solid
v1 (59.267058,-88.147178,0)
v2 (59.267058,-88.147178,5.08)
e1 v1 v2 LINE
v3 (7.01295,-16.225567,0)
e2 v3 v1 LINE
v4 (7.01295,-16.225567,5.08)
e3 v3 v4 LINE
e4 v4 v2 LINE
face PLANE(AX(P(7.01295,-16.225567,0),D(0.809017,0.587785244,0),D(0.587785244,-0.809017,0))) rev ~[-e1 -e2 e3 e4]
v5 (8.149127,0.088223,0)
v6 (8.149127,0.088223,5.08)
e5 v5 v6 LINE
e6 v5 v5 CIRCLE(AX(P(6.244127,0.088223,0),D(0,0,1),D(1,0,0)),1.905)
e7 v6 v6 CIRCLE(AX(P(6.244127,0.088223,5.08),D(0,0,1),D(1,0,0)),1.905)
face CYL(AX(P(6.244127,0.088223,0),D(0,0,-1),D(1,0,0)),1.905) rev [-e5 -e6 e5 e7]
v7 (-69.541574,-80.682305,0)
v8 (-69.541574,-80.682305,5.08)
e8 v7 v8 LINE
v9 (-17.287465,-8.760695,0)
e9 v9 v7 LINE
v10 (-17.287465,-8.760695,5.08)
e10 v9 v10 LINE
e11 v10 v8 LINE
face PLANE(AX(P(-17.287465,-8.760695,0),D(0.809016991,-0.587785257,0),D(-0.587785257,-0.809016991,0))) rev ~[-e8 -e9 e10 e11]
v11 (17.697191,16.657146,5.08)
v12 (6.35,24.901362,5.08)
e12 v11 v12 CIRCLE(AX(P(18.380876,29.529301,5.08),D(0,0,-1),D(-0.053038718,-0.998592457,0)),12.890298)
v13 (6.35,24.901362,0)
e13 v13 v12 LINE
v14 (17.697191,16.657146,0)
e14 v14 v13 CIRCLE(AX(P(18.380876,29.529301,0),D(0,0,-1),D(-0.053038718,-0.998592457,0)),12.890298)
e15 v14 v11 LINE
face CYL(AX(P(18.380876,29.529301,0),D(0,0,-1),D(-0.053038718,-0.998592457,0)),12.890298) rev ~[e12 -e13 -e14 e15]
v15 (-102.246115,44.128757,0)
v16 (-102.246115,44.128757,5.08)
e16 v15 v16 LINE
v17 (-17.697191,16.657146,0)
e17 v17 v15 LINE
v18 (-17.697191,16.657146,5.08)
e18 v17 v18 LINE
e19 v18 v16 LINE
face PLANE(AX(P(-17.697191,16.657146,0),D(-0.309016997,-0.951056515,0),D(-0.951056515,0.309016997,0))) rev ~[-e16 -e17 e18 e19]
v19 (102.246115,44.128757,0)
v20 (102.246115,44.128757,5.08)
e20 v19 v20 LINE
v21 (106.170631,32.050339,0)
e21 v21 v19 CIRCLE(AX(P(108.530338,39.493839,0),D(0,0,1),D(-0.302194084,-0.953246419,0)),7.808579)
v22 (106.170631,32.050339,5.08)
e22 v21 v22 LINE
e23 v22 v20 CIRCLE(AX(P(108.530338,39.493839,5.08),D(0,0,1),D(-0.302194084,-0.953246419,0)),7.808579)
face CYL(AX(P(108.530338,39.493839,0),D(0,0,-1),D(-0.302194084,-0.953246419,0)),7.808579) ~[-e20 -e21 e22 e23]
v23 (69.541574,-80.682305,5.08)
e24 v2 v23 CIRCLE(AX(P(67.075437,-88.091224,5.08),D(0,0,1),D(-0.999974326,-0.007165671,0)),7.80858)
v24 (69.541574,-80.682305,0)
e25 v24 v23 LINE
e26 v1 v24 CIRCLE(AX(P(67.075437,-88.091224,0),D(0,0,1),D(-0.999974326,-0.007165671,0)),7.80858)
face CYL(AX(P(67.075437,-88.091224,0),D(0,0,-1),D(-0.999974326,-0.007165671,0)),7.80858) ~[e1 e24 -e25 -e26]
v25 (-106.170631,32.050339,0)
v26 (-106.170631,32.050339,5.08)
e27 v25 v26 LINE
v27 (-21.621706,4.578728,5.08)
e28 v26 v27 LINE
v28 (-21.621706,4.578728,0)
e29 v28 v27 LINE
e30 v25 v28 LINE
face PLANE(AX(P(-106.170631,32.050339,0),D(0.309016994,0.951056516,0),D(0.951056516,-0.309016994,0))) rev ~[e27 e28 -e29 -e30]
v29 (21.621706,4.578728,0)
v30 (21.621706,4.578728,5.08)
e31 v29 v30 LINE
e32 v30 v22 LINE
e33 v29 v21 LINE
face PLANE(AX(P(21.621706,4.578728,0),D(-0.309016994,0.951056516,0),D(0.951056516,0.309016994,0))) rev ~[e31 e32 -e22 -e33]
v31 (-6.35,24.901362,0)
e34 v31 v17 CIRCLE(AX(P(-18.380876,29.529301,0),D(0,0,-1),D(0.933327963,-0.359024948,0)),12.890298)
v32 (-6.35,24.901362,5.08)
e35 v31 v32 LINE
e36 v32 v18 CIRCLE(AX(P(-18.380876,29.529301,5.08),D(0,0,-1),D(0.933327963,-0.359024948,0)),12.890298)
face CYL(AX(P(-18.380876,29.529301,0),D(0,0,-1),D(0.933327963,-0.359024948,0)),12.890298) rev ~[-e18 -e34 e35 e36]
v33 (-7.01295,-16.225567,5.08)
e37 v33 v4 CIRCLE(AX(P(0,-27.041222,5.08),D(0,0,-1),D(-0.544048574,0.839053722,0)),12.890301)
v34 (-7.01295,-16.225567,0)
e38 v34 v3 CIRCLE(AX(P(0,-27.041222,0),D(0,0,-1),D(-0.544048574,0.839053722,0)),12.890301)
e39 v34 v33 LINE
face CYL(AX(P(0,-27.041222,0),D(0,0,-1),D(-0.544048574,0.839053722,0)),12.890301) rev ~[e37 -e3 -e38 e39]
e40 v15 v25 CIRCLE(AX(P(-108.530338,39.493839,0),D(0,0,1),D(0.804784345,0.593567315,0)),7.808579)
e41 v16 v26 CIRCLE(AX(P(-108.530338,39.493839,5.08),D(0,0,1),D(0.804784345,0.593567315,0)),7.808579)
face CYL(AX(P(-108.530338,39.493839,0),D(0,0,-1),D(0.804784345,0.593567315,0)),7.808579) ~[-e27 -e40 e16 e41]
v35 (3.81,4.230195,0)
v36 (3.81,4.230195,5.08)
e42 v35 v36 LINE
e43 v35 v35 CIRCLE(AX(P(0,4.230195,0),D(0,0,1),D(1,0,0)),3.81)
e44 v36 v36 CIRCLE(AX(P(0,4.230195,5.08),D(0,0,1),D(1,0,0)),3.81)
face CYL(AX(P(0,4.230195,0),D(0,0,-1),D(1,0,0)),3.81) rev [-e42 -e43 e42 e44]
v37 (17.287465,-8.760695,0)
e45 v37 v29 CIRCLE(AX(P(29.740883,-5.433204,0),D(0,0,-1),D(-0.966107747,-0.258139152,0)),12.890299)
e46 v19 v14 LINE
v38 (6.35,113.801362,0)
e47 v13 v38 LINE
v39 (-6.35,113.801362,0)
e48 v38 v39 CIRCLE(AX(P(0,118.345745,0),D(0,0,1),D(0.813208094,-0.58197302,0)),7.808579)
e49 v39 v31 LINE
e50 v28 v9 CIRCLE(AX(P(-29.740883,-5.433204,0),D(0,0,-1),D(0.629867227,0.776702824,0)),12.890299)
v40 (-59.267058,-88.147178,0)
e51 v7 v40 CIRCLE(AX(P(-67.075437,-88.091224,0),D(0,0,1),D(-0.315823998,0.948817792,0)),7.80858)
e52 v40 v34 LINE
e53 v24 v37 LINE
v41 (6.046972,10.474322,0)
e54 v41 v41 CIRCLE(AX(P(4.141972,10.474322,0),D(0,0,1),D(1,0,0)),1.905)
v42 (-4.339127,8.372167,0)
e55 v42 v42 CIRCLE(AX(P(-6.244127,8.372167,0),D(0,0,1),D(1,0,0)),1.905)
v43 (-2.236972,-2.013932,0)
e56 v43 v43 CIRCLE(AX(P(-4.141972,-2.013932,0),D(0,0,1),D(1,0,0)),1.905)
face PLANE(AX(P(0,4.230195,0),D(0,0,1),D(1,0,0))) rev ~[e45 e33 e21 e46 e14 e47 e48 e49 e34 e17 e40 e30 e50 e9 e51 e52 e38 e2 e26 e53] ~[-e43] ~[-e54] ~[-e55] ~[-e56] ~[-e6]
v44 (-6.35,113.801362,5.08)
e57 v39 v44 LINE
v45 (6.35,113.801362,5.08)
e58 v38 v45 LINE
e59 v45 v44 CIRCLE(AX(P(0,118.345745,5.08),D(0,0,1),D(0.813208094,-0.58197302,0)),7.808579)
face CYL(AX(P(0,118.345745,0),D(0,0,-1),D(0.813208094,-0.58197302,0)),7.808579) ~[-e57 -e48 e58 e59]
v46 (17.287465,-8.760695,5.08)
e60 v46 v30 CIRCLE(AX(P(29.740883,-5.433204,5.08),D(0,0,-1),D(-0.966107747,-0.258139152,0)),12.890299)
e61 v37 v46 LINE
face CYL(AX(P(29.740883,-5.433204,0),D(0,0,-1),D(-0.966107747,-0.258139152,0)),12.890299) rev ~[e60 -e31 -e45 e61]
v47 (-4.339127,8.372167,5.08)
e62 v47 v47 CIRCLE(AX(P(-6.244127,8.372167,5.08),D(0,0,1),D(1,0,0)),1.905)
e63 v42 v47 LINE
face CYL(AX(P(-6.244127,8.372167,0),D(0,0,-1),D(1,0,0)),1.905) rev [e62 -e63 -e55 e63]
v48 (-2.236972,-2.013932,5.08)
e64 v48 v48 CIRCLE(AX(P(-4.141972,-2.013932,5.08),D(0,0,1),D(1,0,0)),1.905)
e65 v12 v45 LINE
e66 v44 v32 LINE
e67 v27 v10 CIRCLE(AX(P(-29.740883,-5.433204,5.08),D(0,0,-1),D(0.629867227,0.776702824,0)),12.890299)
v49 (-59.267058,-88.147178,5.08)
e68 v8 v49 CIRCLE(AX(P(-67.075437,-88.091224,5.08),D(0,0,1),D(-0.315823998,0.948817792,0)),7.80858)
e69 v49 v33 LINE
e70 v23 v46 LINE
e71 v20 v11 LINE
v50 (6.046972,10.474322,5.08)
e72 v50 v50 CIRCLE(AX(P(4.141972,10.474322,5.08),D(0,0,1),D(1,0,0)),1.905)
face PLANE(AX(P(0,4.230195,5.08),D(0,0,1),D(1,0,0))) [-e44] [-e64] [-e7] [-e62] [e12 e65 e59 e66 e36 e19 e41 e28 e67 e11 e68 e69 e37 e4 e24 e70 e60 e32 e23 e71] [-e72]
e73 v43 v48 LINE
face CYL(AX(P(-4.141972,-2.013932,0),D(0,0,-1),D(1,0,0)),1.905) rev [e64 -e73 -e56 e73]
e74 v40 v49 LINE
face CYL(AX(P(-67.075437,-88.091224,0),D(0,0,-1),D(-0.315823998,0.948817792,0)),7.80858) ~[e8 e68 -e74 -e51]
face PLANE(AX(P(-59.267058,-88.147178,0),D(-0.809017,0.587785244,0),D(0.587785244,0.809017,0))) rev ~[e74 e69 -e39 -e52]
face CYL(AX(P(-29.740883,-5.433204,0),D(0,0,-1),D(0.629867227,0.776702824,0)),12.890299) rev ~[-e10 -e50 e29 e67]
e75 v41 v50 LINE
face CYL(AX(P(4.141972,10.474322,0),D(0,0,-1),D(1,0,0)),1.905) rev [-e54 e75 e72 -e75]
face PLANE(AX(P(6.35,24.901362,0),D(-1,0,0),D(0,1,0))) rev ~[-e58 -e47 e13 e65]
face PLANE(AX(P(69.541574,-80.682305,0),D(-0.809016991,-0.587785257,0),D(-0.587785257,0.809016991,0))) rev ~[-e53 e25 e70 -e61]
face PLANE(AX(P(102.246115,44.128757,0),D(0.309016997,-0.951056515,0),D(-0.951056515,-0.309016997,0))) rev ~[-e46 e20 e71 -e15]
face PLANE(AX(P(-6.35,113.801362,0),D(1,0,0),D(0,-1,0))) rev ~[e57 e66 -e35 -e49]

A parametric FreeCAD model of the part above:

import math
import FreeCAD as App
import Part
import Sketcher

V = App.Vector
Q = App.Units.Quantity

doc = App.newDocument("Part")
body = doc.addObject("PartDesign::Body", "Body")

# Sketch on XY plane
sketch1 = body.newObject("Sketcher::SketchObject", "Sketch")
sketch1.AttachmentSupport = (doc.getObject("XY_Plane"), [""])
sketch1.MapMode = "FlatFace"
sketch1.addGeometry(Part.ArcOfCircle(Part.Circle(V(-18.380876, 29.529301, 0), V(0, 0, 1), 12.890298), math.radians(-86.959679), math.radians(-21.040327)), False)
sketch1.addGeometry(Part.LineSegment(V(-17.697191, 16.657146, 0), V(-102.246115, 44.128757, 0)), False)
sketch1.addGeometry(Part.ArcOfCircle(Part.Circle(V(-108.530338, 39.493839, 0), V(0, 0, 1), 7.808579), math.radians(36.410567), math.radians(287.589433)), False)
sketch1.addGeometry(Part.LineSegment(V(-106.170631, 32.050339, 0), V(-21.621706, 4.578728, 0)), False)
sketch1.addGeometry(Part.ArcOfCircle(Part.Circle(V(-29.740883, -5.433204, 0), V(0, 0, 1), 12.890299), math.radians(-14.959675), math.radians(50.959673)), False)
sketch1.addGeometry(Part.LineSegment(V(-17.287465, -8.760695, 0), V(-69.541574, -80.682305, 0)), False)
sketch1.addGeometry(Part.ArcOfCircle(Part.Circle(V(-67.075437, -88.091224, 0), V(0, 0, 1), 7.80858), math.radians(108.410565), math.radians(359.589434)), False)
sketch1.addGeometry(Part.LineSegment(V(-59.267058, -88.147178, 0), V(-7.01295, -16.225567, 0)), False)
sketch1.addGeometry(Part.ArcOfCircle(Part.Circle(V(0, -27.041222, 0), V(0, 0, 1), 12.890301), math.radians(57.04033), math.radians(122.95967)), False)
sketch1.addGeometry(Part.LineSegment(V(7.01295, -16.225567, 0), V(59.267058, -88.147178, 0)), False)
sketch1.addGeometry(Part.ArcOfCircle(Part.Circle(V(67.075437, -88.091224, 0), V(0, 0, 1), 7.80858), math.radians(-179.589434), math.radians(71.589435)), False)
sketch1.addGeometry(Part.LineSegment(V(69.541574, -80.682305, 0), V(17.287465, -8.760695, 0)), False)
sketch1.addGeometry(Part.ArcOfCircle(Part.Circle(V(29.740883, -5.433204, 0), V(0, 0, 1), 12.890299), math.radians(129.040327), math.radians(194.959675)), False)
sketch1.addGeometry(Part.LineSegment(V(21.621706, 4.578728, 0), V(106.170631, 32.050339, 0)), False)
sketch1.addGeometry(Part.ArcOfCircle(Part.Circle(V(108.530338, 39.493839, 0), V(0, 0, 1), 7.808579), math.radians(-107.589433), math.radians(143.589433)), False)
sketch1.addGeometry(Part.LineSegment(V(102.246115, 44.128757, 0), V(17.697191, 16.657146, 0)), False)
sketch1.addGeometry(Part.ArcOfCircle(Part.Circle(V(18.380876, 29.529301, 0), V(0, 0, 1), 12.890298), math.radians(-158.959673), math.radians(-93.040321)), False)
sketch1.addGeometry(Part.LineSegment(V(6.35, 24.901362, 0), V(6.35, 113.801362, 0)), False)
sketch1.addGeometry(Part.ArcOfCircle(Part.Circle(V(0, 118.345745, 0), V(0, 0, 1), 7.808579), math.radians(-35.589434), math.radians(215.589434)), False)
sketch1.addGeometry(Part.LineSegment(V(-6.35, 113.801362, 0), V(-6.35, 24.901362, 0)), False)
sketch1.addGeometry(Part.Circle(V(-4.141972, -2.013932, 0), V(0, 0, 1), 1.905), False)
sketch1.addGeometry(Part.Circle(V(6.244127, 0.088223, 0), V(0, 0, 1), 1.905), False)
sketch1.addGeometry(Part.Circle(V(-6.244127, 8.372167, 0), V(0, 0, 1), 1.905), False)
sketch1.addGeometry(Part.Circle(V(0, 4.230195, 0), V(0, 0, 1), 3.81), False)
sketch1.addGeometry(Part.Circle(V(4.141972, 10.474322, 0), V(0, 0, 1), 1.905), False)
sketch1.addConstraint(Sketcher.Constraint("Coincident", 0, 1, 1, 1))
sketch1.addConstraint(Sketcher.Constraint("Coincident", 1, 2, 2, 1))
sketch1.addConstraint(Sketcher.Constraint("Coincident", 2, 2, 3, 1))
sketch1.addConstraint(Sketcher.Constraint("Coincident", 3, 2, 4, 2))
sketch1.addConstraint(Sketcher.Constraint("Coincident", 4, 1, 5, 1))
sketch1.addConstraint(Sketcher.Constraint("Coincident", 5, 2, 6, 1))
sketch1.addConstraint(Sketcher.Constraint("Coincident", 6, 2, 7, 1))
sketch1.addConstraint(Sketcher.Constraint("Coincident", 7, 2, 8, 2))
sketch1.addConstraint(Sketcher.Constraint("Coincident", 8, 1, 9, 1))
sketch1.addConstraint(Sketcher.Constraint("Coincident", 9, 2, 10, 1))
sketch1.addConstraint(Sketcher.Constraint("Coincident", 10, 2, 11, 1))
sketch1.addConstraint(Sketcher.Constraint("Coincident", 11, 2, 12, 2))
sketch1.addConstraint(Sketcher.Constraint("Coincident", 12, 1, 13, 1))
sketch1.addConstraint(Sketcher.Constraint("Coincident", 13, 2, 14, 1))
sketch1.addConstraint(Sketcher.Constraint("Coincident", 14, 2, 15, 1))
sketch1.addConstraint(Sketcher.Constraint("Coincident", 15, 2, 16, 2))
sketch1.addConstraint(Sketcher.Constraint("Coincident", 16, 1, 17, 1))
sketch1.addConstraint(Sketcher.Constraint("Coincident", 17, 2, 18, 1))
sketch1.addConstraint(Sketcher.Constraint("Coincident", 18, 2, 19, 1))
sketch1.addConstraint(Sketcher.Constraint("Coincident", 19, 2, 0, 2))
sketch1.addConstraint(Sketcher.Constraint("Vertical", 17))
sketch1.addConstraint(Sketcher.Constraint("Vertical", 19))
sketch1.addConstraint(Sketcher.Constraint("PointOnObject", 8, 3, -2))
sketch1.addConstraint(Sketcher.Constraint("PointOnObject", 18, 3, -2))
sketch1.addConstraint(Sketcher.Constraint("PointOnObject", 23, 3, -2))
sketch1.addConstraint(Sketcher.Constraint("Diameter", 23, Q("0.3 in")))
sketch1.addConstraint(Sketcher.Constraint("Diameter", 20, Q("0.15 in")))
sketch1.addConstraint(Sketcher.Constraint("Diameter", 21, Q("0.15 in")))
sketch1.addConstraint(Sketcher.Constraint("Diameter", 22, Q("0.15 in")))
sketch1.addConstraint(Sketcher.Constraint("Diameter", 24, Q("0.15 in")))
sketch1.addConstraint(Sketcher.Constraint("DistanceY", 17, 1, 17, 2, Q("3.5 in")))
sketch1.addConstraint(Sketcher.Constraint("DistanceY", 19, 2, 19, 1, Q("3.5 in")))
sketch1.addConstraint(Sketcher.Constraint("Distance", 1, Q("3.5 in")))
sketch1.addConstraint(Sketcher.Constraint("Distance", 3, Q("3.5 in")))
sketch1.addConstraint(Sketcher.Constraint("Distance", 5, Q("3.5 in")))
sketch1.addConstraint(Sketcher.Constraint("Distance", 7, Q("3.5 in")))
sketch1.addConstraint(Sketcher.Constraint("Distance", 9, Q("3.5 in")))
sketch1.addConstraint(Sketcher.Constraint("Distance", 11, Q("3.5 in")))
sketch1.addConstraint(Sketcher.Constraint("Distance", 13, Q("3.5 in")))
sketch1.addConstraint(Sketcher.Constraint("Distance", 15, Q("3.5 in")))
sketch1.addConstraint(Sketcher.Constraint("DistanceX", 18, 2, 17, 2, Q("0.5 in")))
sketch1.addConstraint(Sketcher.Constraint("DistanceY", 16, 1, 18, 2, Q("3.5 in")))
sketch1.addConstraint(Sketcher.Constraint("Radius", 0, 12.890298))
sketch1.addConstraint(Sketcher.Constraint("Radius", 4, 12.890299))
sketch1.addConstraint(Sketcher.Constraint("Radius", 8, 12.890301))
sketch1.addConstraint(Sketcher.Constraint("Radius", 12, 12.890299))
sketch1.addConstraint(Sketcher.Constraint("Radius", 16, 12.890298))
sketch1.addConstraint(Sketcher.Constraint("Radius", 2, 7.808579))
sketch1.addConstraint(Sketcher.Constraint("Radius", 6, 7.80858))
sketch1.addConstraint(Sketcher.Constraint("Radius", 10, 7.80858))
sketch1.addConstraint(Sketcher.Constraint("Radius", 14, 7.808579))
sketch1.addConstraint(Sketcher.Constraint("Radius", 18, 7.808579))
sketch1.addConstraint(Sketcher.Constraint("DistanceY", -1, 1, 0, 3, 29.529301))
sketch1.addConstraint(Sketcher.Constraint("DistanceY", -1, 1, 16, 3, 29.529301))
sketch1.addConstraint(Sketcher.Constraint("DistanceX", 2, 3, 6, 3, 41.4549))
sketch1.addConstraint(Sketcher.Constraint("DistanceX", 10, 3, 14, 3, 41.4549))
sketch1.addConstraint(Sketcher.Constraint("DistanceX", 20, 3, 21, 3, 10.386099))
sketch1.addConstraint(Sketcher.Constraint("DistanceY", 20, 3, 22, 3, 10.386099))
sketch1.addConstraint(Sketcher.Constraint("DistanceX", 22, 3, 24, 3, 10.386099))
sketch1.addConstraint(Sketcher.Constraint("DistanceY", 21, 3, 24, 3, 10.386099))
sketch1.addConstraint(Sketcher.Constraint("DistanceY", 2, 2, 2, 3, 7.4435))
sketch1.addConstraint(Sketcher.Constraint("DistanceY", 5, 2, 4, 3, 75.249101))
sketch1.addConstraint(Sketcher.Constraint("DistanceX", 7, 2, 8, 1, 14.0259))
sketch1.addConstraint(Sketcher.Constraint("DistanceY", 10, 2, 12, 3, 75.249101))
sketch1.addConstraint(Sketcher.Constraint("DistanceY", 13, 2, 14, 3, 7.4435))
sketch1.addConstraint(Sketcher.Constraint("DistanceY", -1, 1, 2, 3, 39.493839))
sketch1.addConstraint(Sketcher.Constraint("DistanceY", -1, 1, 14, 3, 39.493839))
sketch1.addConstraint(Sketcher.Constraint("DistanceY", 20, 3, -1, 1, 2.013932))
sketch1.addConstraint(Sketcher.Constraint("DistanceX", 0, 1, -1, 1, 17.697191))
sketch1.addConstraint(Sketcher.Constraint("DistanceX", 2, 2, -1, 1, 106.170631))
sketch1.addConstraint(Sketcher.Constraint("DistanceY", 6, 2, -1, 1, 88.147178))
sketch1.addConstraint(Sketcher.Constraint("DistanceX", 7, 2, -1, 1, 7.01295))
sketch1.addConstraint(Sketcher.Constraint("DistanceY", -1, 1, 12, 1, 4.578728))
sketch1.addConstraint(Sketcher.Constraint("DistanceX", -1, 1, 13, 2, 106.170631))
sketch1.addConstraint(Sketcher.Constraint("DistanceX", -1, 1, 15, 2, 17.697191))
sketch1.addConstraint(Sketcher.Constraint("DistanceY", -1, 1, 16, 1, 24.901362))
sketch1.addConstraint(Sketcher.Constraint("DistanceY", 6, 3, 4, 3, 82.65802))
sketch1.addConstraint(Sketcher.Constraint("DistanceY", 8, 3, 4, 3, 21.608018))
sketch1.addConstraint(Sketcher.Constraint("DistanceX", 4, 3, 10, 3, 96.81632))
sketch1.addConstraint(Sketcher.Constraint("DistanceY", 10, 3, 4, 3, 82.65802))
sketch1.addConstraint(Sketcher.Constraint("DistanceY", 8, 3, 12, 3, 21.608018))
sketch1.addConstraint(Sketcher.Constraint("DistanceX", 4, 3, 20, 3, 25.598911))
sketch1.addConstraint(Sketcher.Constraint("DistanceX", 0, 3, 22, 3, 12.136749))
sketch1.addConstraint(Sketcher.Constraint("DistanceY", 23, 3, 22, 3, 4.141972))
sketch1.addConstraint(Sketcher.Constraint("DistanceY", 24, 3, 16, 3, 19.054979))
pad1 = body.newObject("PartDesign::Pad", "Pad")
pad1.Profile = sketch1
pad1.Length = Q("0.2 in")

doc.recompute()
